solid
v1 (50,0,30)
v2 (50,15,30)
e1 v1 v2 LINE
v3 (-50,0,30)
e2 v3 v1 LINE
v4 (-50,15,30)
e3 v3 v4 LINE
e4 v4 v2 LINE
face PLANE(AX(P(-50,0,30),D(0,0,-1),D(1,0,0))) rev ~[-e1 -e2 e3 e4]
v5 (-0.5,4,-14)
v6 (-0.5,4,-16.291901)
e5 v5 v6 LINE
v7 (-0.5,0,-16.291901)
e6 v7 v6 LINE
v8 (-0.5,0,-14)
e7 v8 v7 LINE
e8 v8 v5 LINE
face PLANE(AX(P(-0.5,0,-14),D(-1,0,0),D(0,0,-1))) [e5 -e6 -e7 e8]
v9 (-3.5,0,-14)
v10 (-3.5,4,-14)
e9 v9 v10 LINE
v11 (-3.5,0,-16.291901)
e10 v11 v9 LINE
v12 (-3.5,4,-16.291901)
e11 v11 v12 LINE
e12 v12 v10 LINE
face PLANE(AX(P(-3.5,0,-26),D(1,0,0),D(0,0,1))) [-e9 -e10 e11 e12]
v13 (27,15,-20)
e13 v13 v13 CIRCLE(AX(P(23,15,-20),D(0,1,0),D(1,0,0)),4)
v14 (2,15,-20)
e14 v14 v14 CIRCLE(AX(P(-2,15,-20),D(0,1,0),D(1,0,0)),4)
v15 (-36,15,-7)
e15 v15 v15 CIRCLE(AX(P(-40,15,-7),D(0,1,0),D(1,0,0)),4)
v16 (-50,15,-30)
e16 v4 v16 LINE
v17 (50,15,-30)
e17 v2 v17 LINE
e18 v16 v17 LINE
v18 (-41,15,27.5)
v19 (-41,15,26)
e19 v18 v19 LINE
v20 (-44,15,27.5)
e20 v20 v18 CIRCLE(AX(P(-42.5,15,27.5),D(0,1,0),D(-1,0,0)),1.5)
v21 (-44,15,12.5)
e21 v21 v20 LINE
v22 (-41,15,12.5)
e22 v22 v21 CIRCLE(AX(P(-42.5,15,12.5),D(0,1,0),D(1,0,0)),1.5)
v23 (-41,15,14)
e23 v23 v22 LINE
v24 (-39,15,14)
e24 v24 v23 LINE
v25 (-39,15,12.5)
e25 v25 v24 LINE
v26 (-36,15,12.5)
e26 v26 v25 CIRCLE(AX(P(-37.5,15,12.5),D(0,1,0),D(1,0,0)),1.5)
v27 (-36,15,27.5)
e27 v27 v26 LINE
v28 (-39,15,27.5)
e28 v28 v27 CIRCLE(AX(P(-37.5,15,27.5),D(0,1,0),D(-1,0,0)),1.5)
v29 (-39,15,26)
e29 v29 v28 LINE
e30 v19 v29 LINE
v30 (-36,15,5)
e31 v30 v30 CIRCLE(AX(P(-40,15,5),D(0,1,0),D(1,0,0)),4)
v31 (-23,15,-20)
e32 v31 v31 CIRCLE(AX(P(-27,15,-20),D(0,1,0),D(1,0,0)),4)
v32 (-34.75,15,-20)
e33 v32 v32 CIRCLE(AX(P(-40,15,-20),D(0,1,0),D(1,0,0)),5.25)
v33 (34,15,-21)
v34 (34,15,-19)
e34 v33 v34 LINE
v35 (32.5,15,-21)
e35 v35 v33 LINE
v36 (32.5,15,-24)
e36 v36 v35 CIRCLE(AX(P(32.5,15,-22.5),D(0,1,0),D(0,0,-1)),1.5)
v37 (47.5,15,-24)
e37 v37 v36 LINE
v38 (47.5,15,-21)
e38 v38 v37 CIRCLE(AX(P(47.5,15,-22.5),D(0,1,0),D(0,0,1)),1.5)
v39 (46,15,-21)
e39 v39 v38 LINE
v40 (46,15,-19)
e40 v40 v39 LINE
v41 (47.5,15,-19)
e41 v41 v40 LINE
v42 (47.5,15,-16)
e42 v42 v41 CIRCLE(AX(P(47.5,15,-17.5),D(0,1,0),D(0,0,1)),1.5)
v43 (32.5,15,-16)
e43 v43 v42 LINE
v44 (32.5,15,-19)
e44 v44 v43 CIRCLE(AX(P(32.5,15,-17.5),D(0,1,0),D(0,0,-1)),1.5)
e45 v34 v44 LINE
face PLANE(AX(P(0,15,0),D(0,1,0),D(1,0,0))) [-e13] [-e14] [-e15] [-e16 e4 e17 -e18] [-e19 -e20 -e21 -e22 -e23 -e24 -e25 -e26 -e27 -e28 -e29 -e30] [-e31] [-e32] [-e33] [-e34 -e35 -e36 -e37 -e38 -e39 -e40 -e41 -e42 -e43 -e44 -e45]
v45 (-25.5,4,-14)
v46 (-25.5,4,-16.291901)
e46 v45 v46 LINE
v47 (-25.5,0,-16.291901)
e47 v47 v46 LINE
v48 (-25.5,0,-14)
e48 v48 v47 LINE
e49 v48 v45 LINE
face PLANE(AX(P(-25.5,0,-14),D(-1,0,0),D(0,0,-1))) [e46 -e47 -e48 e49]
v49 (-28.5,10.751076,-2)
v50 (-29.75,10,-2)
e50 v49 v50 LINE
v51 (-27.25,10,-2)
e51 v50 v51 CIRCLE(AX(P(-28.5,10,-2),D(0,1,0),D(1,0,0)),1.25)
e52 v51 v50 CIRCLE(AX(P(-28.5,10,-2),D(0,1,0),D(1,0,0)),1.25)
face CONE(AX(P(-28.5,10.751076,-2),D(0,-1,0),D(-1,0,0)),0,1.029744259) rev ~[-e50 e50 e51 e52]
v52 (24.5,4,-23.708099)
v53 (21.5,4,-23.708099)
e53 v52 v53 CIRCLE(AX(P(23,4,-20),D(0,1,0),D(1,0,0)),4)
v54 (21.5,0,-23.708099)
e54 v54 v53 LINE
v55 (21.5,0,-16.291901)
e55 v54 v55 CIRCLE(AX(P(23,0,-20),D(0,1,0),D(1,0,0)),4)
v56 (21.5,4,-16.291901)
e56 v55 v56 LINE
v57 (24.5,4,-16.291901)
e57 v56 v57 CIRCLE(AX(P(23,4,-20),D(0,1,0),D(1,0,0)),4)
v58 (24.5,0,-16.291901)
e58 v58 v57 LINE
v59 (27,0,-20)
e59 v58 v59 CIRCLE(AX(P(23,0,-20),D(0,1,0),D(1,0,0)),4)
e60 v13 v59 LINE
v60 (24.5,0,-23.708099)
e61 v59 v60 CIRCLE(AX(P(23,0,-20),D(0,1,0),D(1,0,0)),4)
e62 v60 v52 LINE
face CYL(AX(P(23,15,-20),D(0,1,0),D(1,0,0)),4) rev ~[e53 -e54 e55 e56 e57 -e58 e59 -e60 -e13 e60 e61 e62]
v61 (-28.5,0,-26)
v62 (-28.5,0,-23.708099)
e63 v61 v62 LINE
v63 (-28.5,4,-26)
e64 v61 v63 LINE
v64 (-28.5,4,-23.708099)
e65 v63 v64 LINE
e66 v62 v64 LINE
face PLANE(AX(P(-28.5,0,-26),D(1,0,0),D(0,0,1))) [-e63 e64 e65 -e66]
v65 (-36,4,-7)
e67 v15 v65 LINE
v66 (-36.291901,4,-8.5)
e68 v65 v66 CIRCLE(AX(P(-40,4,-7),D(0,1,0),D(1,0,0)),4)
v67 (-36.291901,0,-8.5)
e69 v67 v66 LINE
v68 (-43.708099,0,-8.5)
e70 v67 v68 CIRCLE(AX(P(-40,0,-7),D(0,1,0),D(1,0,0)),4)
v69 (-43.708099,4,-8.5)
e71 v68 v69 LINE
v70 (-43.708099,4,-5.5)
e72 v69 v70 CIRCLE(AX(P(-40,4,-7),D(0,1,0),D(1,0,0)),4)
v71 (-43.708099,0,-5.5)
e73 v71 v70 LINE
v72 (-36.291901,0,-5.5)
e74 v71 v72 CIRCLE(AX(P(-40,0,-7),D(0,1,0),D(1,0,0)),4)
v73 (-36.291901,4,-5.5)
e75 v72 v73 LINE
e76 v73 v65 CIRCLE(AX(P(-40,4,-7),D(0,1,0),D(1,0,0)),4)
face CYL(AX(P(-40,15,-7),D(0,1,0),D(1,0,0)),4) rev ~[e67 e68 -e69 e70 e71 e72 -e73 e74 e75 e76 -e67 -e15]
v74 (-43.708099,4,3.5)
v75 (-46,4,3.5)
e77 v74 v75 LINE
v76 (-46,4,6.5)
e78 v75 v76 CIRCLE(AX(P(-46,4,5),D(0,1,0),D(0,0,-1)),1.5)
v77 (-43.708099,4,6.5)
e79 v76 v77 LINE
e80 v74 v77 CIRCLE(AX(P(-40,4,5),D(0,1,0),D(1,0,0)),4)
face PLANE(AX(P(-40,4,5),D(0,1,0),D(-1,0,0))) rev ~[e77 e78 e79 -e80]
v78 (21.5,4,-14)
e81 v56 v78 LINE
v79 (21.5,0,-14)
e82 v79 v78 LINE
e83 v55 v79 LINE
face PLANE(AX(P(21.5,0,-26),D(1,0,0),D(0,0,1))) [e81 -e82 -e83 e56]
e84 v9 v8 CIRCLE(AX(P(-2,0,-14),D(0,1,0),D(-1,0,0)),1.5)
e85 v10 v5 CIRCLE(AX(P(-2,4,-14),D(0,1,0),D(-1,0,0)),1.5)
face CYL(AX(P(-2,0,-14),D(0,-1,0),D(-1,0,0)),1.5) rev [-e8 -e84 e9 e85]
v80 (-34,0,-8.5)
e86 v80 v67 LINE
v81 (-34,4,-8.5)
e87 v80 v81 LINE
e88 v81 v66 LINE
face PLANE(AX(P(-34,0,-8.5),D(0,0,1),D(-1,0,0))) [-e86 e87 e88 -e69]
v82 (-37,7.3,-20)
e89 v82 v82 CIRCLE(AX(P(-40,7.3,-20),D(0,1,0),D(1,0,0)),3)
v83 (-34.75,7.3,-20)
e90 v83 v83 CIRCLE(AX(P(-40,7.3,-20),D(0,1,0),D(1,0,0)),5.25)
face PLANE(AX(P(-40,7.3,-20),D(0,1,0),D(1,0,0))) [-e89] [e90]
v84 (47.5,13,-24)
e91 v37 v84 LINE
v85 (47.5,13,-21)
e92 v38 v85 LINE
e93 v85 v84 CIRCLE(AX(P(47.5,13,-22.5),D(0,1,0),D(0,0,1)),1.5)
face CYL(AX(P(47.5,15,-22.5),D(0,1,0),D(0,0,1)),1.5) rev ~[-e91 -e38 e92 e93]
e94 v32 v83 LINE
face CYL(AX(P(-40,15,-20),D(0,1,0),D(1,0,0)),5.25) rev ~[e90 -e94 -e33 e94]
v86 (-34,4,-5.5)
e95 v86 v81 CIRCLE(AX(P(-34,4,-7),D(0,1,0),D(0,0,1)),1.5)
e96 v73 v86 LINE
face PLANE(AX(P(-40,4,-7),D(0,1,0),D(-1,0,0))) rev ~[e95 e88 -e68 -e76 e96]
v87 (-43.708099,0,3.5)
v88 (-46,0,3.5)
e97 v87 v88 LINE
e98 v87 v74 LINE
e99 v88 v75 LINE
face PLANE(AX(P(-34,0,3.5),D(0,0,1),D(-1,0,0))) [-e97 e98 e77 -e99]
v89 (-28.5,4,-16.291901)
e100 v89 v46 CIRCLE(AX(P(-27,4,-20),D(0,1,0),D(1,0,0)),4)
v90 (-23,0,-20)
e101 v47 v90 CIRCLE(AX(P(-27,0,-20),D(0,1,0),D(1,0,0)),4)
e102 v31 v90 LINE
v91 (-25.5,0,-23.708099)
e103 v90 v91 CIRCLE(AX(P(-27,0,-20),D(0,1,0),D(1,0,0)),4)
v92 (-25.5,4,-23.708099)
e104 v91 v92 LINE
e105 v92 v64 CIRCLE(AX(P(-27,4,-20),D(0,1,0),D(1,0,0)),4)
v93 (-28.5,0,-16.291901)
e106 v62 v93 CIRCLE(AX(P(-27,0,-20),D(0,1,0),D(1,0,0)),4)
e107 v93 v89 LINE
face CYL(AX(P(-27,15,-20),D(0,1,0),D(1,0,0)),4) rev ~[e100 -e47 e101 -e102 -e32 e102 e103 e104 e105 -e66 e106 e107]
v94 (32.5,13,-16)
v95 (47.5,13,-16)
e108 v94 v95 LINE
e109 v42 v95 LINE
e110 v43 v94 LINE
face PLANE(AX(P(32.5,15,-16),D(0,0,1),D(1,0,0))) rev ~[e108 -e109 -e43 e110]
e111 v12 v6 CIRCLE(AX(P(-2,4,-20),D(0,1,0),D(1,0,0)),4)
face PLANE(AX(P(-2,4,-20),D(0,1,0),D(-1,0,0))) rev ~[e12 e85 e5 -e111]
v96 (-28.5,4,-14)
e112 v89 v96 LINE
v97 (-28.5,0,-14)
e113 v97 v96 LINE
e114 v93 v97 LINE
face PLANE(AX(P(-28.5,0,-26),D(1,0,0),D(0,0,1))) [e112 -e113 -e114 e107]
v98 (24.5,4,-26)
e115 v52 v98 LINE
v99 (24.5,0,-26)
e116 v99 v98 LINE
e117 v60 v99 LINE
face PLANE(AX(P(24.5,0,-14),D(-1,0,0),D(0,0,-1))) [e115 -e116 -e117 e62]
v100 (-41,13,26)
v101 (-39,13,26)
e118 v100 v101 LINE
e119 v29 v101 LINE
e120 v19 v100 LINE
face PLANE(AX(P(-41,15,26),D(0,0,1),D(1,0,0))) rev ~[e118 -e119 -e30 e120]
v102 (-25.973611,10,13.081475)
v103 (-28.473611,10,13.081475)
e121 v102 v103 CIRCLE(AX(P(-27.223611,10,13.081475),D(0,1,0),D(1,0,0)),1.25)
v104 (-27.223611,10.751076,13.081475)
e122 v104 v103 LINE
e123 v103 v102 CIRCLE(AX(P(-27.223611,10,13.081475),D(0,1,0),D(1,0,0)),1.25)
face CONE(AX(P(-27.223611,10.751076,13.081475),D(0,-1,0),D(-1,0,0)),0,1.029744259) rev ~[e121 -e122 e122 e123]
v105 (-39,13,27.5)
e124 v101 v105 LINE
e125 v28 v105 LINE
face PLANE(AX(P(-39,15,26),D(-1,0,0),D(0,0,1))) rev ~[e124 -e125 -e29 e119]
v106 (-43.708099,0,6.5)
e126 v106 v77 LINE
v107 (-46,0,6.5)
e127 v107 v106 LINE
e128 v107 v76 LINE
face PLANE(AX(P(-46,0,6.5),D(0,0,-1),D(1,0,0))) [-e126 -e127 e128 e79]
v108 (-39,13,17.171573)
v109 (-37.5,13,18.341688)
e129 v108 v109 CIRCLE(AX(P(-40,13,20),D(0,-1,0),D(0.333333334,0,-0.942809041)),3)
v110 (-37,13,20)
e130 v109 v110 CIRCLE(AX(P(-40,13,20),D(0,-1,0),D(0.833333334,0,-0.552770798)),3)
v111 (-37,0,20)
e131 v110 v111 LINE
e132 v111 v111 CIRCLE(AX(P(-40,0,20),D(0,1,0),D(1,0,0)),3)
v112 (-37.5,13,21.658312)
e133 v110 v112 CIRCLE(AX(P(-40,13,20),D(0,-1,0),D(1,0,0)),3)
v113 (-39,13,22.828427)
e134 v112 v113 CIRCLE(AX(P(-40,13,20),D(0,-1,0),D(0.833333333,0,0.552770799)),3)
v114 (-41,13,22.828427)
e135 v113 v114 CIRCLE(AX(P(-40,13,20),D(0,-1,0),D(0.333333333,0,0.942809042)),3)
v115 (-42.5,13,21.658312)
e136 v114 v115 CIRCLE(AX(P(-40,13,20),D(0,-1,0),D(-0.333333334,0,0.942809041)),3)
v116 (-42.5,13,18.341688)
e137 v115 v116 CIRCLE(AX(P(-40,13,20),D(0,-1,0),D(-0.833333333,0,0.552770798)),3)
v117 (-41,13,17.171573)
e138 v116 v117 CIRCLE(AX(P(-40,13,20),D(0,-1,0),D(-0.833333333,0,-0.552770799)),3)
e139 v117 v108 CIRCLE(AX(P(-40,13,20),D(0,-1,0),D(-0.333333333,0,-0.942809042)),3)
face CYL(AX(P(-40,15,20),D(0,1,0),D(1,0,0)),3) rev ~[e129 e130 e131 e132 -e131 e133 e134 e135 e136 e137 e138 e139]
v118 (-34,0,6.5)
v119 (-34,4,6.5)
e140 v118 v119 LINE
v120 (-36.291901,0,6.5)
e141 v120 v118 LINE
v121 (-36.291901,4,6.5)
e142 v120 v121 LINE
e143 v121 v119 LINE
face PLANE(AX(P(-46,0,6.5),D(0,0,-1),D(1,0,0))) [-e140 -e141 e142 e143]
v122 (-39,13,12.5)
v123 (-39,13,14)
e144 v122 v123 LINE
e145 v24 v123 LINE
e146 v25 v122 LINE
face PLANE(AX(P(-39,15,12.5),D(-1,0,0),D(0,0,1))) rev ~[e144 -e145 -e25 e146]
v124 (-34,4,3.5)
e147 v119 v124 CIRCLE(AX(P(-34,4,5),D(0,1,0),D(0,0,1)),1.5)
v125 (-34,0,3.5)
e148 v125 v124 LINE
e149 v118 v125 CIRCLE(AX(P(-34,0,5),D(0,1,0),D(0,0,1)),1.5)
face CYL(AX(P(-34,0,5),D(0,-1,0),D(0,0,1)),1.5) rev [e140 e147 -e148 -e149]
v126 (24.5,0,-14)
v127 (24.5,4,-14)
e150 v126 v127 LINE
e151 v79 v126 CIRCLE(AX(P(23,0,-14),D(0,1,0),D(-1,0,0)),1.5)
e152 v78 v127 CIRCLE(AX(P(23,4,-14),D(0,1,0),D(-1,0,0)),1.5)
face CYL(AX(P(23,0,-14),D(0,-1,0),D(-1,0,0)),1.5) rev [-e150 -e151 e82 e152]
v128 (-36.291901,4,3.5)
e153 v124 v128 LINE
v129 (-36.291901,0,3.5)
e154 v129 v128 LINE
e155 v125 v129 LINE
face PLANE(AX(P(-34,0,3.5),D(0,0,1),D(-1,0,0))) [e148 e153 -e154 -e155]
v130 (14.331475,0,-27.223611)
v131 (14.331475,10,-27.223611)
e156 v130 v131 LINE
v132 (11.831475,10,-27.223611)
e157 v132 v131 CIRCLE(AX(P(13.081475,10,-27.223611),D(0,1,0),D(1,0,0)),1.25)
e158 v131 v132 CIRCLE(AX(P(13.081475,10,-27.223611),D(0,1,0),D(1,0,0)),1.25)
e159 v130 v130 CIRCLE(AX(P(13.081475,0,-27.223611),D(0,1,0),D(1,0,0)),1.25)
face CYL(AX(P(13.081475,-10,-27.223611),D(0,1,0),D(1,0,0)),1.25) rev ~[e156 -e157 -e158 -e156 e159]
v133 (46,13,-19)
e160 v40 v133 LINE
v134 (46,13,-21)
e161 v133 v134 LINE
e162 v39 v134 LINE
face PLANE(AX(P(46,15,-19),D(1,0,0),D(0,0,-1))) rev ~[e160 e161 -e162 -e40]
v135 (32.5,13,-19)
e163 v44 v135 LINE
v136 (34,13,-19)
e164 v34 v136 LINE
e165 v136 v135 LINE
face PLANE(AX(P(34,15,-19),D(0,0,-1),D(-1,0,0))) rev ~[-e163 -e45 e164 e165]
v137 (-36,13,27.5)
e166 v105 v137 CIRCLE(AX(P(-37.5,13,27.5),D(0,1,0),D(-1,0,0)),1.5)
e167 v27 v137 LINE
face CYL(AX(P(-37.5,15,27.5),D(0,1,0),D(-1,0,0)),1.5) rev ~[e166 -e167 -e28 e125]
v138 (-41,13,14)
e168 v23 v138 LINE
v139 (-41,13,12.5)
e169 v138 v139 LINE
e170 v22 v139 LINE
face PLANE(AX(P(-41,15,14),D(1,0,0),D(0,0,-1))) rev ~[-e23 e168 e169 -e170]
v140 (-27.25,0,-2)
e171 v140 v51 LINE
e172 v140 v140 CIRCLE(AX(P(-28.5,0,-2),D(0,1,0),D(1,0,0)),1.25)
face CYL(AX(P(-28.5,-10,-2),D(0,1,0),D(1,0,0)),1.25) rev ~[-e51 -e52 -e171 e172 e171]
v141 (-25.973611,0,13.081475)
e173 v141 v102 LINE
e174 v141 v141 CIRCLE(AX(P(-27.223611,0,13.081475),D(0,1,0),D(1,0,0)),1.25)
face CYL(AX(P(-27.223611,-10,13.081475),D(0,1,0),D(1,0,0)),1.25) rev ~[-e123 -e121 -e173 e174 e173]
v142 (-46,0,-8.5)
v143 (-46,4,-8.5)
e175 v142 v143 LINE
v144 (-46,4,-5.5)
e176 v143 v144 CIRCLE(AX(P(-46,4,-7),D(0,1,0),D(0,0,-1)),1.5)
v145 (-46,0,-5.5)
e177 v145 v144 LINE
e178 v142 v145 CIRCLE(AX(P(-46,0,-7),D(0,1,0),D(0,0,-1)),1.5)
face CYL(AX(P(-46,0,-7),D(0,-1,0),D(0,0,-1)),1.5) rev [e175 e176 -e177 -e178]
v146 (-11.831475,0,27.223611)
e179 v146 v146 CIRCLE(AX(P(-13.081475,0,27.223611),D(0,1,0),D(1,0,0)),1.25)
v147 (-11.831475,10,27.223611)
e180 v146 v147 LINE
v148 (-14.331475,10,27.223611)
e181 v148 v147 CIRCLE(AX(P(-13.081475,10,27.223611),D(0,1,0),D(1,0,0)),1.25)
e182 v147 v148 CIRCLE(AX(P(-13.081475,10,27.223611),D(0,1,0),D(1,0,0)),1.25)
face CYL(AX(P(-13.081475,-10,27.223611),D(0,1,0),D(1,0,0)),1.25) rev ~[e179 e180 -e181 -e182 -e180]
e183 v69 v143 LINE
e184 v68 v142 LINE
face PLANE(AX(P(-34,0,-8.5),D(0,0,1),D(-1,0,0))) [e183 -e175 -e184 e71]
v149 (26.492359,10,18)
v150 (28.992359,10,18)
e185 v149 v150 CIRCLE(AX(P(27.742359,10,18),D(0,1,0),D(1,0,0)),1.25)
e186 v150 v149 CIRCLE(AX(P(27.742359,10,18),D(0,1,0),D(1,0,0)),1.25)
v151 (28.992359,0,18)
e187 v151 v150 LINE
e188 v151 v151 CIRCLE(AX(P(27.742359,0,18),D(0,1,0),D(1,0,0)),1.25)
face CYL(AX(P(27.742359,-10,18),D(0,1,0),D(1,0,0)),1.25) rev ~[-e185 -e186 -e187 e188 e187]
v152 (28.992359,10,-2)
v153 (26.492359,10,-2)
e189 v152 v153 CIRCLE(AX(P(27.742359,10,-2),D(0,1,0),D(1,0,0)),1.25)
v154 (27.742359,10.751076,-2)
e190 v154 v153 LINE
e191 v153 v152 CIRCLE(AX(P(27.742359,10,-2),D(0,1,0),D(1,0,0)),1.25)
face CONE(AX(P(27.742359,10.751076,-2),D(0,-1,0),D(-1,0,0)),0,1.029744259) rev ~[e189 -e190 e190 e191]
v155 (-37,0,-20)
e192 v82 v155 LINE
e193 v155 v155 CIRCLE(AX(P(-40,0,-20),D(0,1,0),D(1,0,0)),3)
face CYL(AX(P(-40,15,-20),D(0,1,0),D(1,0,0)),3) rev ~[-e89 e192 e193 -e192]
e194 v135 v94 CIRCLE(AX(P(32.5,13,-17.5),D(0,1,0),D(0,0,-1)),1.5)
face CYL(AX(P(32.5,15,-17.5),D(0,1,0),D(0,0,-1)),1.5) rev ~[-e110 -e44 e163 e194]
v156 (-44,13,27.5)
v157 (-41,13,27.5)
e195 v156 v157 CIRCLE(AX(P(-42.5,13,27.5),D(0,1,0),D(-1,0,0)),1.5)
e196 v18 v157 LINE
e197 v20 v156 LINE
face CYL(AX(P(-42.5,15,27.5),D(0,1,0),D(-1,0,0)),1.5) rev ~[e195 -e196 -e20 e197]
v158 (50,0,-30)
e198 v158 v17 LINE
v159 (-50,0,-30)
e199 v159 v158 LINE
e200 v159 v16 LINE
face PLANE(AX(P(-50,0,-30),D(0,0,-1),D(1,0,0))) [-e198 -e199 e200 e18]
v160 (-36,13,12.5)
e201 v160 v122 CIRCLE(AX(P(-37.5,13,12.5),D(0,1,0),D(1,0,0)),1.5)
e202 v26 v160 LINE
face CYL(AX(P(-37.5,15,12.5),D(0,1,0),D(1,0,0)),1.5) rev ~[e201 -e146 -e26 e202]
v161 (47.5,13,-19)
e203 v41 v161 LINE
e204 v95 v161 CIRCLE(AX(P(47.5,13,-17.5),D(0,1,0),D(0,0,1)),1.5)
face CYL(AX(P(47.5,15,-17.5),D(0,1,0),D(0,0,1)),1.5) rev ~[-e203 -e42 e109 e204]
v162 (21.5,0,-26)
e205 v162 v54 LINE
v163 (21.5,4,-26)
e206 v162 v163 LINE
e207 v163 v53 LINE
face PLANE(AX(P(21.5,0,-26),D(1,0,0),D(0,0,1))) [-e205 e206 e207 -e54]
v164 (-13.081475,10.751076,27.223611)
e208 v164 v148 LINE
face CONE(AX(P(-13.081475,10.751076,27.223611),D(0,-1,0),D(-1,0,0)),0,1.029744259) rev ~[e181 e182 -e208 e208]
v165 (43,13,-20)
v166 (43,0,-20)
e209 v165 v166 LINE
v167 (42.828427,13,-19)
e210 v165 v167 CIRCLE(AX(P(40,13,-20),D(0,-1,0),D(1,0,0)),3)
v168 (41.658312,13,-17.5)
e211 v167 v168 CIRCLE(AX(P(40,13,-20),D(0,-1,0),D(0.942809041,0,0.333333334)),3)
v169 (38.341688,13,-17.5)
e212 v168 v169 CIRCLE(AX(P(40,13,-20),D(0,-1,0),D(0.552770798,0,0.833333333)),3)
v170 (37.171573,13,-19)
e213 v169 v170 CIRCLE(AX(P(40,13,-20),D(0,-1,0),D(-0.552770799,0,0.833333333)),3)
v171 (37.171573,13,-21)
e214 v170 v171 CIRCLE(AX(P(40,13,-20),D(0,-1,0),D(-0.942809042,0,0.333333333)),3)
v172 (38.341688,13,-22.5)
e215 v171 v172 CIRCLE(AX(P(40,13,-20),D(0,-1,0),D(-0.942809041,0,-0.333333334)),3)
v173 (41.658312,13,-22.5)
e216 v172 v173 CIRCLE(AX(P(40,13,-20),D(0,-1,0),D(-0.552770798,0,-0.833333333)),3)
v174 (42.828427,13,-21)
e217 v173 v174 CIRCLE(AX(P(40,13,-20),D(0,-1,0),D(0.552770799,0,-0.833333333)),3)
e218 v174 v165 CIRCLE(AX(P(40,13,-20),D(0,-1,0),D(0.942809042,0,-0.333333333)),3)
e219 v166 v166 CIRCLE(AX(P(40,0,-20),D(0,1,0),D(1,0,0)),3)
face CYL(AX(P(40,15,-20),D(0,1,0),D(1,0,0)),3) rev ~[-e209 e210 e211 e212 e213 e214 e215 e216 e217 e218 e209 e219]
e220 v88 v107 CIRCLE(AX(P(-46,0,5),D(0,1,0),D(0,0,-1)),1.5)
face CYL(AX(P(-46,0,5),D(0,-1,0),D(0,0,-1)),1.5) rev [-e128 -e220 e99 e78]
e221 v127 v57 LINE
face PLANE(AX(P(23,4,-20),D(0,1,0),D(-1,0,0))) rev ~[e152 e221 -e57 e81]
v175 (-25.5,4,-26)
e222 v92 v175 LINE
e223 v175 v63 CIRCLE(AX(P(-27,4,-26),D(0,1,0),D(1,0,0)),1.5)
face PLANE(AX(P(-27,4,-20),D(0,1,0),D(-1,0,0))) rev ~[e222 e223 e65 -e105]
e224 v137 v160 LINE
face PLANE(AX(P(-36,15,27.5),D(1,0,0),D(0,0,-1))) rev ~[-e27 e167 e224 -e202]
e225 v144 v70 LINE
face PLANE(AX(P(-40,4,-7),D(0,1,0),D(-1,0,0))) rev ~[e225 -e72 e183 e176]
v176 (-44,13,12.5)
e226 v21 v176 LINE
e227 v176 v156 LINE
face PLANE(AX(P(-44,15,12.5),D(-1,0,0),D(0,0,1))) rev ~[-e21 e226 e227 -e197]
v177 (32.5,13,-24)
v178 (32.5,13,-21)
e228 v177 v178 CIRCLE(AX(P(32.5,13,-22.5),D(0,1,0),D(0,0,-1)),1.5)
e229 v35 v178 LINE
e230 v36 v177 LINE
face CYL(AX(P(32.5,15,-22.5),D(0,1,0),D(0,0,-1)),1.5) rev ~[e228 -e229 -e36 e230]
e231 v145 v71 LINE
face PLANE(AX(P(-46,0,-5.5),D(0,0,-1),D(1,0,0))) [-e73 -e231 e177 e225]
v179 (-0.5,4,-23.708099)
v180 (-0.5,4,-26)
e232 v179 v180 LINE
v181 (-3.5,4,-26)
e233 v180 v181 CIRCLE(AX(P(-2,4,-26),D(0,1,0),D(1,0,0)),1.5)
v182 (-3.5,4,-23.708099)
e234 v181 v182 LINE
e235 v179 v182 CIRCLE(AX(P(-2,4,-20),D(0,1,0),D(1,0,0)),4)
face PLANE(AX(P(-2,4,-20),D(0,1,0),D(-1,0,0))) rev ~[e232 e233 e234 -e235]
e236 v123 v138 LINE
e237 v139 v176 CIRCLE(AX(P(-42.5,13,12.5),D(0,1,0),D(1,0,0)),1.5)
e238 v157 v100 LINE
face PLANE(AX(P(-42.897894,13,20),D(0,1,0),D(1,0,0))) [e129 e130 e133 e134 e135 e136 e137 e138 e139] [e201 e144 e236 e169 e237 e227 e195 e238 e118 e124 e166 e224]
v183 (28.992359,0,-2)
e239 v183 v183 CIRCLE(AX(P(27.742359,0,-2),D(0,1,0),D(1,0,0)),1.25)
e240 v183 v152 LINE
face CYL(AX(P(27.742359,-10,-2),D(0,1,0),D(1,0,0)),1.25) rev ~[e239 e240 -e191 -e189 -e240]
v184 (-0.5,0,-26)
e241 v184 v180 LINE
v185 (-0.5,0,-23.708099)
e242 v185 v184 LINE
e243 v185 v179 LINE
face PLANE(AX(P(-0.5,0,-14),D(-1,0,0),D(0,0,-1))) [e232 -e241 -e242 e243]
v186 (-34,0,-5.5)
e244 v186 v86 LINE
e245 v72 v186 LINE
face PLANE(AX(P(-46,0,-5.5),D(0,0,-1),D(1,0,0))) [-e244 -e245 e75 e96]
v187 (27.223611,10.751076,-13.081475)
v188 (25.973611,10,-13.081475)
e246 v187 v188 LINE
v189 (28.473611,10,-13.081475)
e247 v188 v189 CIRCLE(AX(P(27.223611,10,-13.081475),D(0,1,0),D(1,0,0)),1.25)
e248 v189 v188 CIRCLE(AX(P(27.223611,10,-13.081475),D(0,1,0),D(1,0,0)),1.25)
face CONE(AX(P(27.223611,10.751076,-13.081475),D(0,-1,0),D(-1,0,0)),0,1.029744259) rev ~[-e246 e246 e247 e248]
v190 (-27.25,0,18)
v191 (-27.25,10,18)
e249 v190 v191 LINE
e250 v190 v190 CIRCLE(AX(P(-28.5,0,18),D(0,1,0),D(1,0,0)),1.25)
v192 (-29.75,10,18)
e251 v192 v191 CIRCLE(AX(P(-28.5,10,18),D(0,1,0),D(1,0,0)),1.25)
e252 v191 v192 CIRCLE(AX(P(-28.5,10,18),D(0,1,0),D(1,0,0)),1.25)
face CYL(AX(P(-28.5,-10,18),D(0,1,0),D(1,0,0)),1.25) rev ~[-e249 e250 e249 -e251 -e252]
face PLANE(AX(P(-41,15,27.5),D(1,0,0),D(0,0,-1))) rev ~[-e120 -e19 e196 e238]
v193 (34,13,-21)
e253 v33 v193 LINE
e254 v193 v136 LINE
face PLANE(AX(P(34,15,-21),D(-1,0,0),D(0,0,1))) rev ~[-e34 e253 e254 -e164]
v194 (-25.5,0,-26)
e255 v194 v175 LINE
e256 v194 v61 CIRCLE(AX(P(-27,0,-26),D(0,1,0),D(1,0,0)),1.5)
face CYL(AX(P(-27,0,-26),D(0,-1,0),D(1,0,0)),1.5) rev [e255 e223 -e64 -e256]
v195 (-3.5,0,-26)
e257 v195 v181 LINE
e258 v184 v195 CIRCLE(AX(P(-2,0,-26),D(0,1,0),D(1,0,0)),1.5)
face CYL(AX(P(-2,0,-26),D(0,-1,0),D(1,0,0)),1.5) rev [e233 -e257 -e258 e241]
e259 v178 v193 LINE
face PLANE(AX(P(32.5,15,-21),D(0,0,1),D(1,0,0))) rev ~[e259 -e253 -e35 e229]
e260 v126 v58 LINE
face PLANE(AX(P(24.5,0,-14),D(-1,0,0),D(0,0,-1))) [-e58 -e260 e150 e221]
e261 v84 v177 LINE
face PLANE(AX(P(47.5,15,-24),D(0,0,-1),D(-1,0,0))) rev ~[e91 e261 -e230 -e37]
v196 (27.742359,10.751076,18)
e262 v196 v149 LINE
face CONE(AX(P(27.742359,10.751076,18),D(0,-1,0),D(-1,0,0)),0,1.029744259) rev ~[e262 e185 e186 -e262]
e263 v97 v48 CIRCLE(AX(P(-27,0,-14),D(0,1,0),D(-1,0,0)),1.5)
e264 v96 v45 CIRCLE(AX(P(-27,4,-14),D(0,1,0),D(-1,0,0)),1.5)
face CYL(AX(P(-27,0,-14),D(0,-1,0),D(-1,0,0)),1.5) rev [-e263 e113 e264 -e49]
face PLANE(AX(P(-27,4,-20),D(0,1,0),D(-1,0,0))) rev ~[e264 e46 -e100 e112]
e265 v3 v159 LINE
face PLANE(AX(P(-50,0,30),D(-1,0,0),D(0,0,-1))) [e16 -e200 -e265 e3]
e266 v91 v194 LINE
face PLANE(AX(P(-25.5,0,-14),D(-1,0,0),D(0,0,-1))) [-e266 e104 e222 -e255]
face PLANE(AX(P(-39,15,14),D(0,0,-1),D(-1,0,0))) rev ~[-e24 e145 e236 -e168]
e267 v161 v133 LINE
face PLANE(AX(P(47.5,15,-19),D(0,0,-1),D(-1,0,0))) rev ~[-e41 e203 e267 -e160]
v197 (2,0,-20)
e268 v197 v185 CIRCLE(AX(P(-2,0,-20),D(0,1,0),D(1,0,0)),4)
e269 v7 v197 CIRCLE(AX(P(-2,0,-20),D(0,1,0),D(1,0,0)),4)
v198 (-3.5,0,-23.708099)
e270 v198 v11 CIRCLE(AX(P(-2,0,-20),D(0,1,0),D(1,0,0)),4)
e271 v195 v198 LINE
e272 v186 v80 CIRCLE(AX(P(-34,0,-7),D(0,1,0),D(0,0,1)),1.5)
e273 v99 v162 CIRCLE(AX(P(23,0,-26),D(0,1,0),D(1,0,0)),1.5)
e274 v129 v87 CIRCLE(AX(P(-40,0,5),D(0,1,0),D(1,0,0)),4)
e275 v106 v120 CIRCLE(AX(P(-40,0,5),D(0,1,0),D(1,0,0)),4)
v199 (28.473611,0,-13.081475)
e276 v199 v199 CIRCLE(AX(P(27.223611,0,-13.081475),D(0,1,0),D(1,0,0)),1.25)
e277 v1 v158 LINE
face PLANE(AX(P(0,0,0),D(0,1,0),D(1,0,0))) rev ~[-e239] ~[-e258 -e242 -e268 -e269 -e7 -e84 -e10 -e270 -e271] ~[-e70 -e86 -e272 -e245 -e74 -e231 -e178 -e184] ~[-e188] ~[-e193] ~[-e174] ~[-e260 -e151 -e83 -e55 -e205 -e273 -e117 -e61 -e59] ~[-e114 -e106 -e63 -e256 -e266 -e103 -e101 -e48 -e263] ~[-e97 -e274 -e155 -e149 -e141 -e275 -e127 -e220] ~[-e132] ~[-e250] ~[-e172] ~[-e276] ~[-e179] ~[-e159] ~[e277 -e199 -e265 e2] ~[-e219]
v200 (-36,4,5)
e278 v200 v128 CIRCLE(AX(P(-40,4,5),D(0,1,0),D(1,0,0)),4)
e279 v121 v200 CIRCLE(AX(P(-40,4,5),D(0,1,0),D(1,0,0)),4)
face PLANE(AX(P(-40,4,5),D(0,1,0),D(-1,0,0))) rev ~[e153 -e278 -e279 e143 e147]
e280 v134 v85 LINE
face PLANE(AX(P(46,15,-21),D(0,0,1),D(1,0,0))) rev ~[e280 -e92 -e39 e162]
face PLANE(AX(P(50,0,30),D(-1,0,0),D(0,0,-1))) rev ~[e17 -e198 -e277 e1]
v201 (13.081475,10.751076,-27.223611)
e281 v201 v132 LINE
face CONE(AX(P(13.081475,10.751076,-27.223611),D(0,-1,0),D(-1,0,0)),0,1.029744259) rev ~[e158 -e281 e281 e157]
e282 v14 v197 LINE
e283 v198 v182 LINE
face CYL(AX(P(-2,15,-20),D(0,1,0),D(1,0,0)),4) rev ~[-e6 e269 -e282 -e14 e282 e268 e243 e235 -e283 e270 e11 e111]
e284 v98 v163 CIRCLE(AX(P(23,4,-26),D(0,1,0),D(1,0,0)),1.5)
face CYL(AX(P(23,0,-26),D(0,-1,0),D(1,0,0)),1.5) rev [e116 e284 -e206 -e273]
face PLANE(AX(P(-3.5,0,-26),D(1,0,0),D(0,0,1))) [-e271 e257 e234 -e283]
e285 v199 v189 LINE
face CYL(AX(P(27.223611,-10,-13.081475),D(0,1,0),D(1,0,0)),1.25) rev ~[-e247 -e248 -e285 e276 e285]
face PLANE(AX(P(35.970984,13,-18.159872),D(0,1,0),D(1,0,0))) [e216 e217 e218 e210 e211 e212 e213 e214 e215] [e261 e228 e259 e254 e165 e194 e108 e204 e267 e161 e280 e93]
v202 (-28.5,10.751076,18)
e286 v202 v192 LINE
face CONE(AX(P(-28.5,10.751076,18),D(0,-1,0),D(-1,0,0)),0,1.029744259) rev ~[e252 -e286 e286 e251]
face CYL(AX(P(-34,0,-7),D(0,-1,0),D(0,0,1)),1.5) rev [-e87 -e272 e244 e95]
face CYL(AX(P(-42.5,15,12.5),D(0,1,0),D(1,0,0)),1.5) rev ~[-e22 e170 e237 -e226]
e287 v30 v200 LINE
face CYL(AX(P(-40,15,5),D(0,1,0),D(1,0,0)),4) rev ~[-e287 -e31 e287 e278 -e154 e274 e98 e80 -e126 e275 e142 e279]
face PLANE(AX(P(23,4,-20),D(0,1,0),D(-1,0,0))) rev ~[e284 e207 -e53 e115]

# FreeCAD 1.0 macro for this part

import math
import FreeCAD as App
import Part
import Sketcher

V = App.Vector
Q = App.Units.Quantity

doc = App.newDocument("Part")
body = doc.addObject("PartDesign::Body", "Body")

# Sketch on XZ plane
sketch1 = body.newObject("Sketcher::SketchObject", "Sketch")
sketch1.AttachmentSupport = (doc.getObject("XZ_Plane"), [""])
sketch1.MapMode = "FlatFace"
sketch1.addGeometry([
    Part.LineSegment(V(-50, -30, 0), V(-50, 30, 0)),
    Part.LineSegment(V(-50, 30, 0), V(50, 30, 0)),
    Part.LineSegment(V(50, 30, 0), V(50, -30, 0)),
    Part.LineSegment(V(50, -30, 0), V(-50, -30, 0)),
], False)
sketch1.addConstraint([
    Sketcher.Constraint("Coincident", 0, 2, 1, 1),
    Sketcher.Constraint("Coincident", 1, 2, 2, 1),
    Sketcher.Constraint("Coincident", 2, 2, 3, 1),
    Sketcher.Constraint("Coincident", 3, 2, 0, 1),
    Sketcher.Constraint("Vertical", 0),
    Sketcher.Constraint("Horizontal", 1),
    Sketcher.Constraint("Vertical", 2),
    Sketcher.Constraint("Horizontal", 3),
    Sketcher.Constraint("Symmetric", 0, 2, 2, 2, -1, 1),
    Sketcher.Constraint("DistanceX", 1, 1, 1, 2, Q("100 mm")),
    Sketcher.Constraint("DistanceY", 0, 1, 0, 2, Q("60 mm")),
])
pad1 = body.newObject("PartDesign::Pad", "Pad")
pad1.Profile = sketch1
pad1.Length = 15
pad1.Reversed = True

# Sketch on XZ plane
sketch2 = body.newObject("Sketcher::SketchObject", "Sketch001")
sketch2.AttachmentSupport = (doc.getObject("XZ_Plane"), [""])
sketch2.MapMode = "FlatFace"
sketch2.AttachmentOffset = App.Placement(V(0, 0, -15), App.Rotation())
sketch2.addGeometry(Part.Circle(V(-40, -20, 0), V(0, 0, 1), 3), False)
sketch2.addConstraint([
    Sketcher.Constraint("Diameter", 0, Q("6 mm")),
    Sketcher.Constraint("DistanceX", 0, 3, -1, 1, Q("40 mm")),
    Sketcher.Constraint("DistanceY", 0, 3, -1, 1, Q("20 mm")),
])
pocket1 = body.newObject("PartDesign::Pocket", "Pocket")
pocket1.Profile = sketch2
pocket1.Type = "UpToFirst"
pocket1.Reversed = True

# Sketch on XZ plane
sketch3 = body.newObject("Sketcher::SketchObject", "Sketch002")
sketch3.AttachmentSupport = (doc.getObject("XZ_Plane"), [""])
sketch3.MapMode = "FlatFace"
sketch3.AttachmentOffset = App.Placement(V(0, 0, -15), App.Rotation())
sketch3.addGeometry(Part.Circle(V(-40, -20, 0), V(0, 0, 1), 5.25), False)
sketch3.addConstraint([
    Sketcher.Constraint("Diameter", 0, Q("10.5 mm")),
    Sketcher.Constraint("DistanceX", 0, 3, -1, 1, Q("40 mm")),
    Sketcher.Constraint("DistanceY", 0, 3, -1, 1, Q("20 mm")),
])
pocket2 = body.newObject("PartDesign::Pocket", "Pocket001")
pocket2.Profile = sketch3
pocket2.Length = 7.7
pocket2.Reversed = True

# Sketch on XZ plane
sketch4 = body.newObject("Sketcher::SketchObject", "Sketch003")
sketch4.AttachmentSupport = (doc.getObject("XZ_Plane"), [""])
sketch4.MapMode = "FlatFace"
sketch4.AttachmentOffset = App.Placement(V(0, 0, -15), App.Rotation())
sketch4.addGeometry(Part.Circle(V(-40, -7, 0), V(0, 0, 1), 4), False)
sketch4.addConstraint([
    Sketcher.Constraint("Diameter", 0, Q("8 mm")),
    Sketcher.Constraint("DistanceX", 0, 3, -1, 1, Q("40 mm")),
    Sketcher.Constraint("DistanceY", 0, 3, -1, 1, Q("7 mm")),
])
pocket3 = body.newObject("PartDesign::Pocket", "Pocket002")
pocket3.Profile = sketch4
pocket3.Type = "UpToFirst"
pocket3.Reversed = True

# Sketch on XZ plane
sketch5 = body.newObject("Sketcher::SketchObject", "Sketch004")
sketch5.AttachmentSupport = (doc.getObject("XZ_Plane"), [""])
sketch5.MapMode = "FlatFace"
sketch5.AttachmentOffset = App.Placement(V(0, 0, -15), App.Rotation())
sketch5.addGeometry(Part.Circle(V(-40, 5, 0), V(0, 0, 1), 4), False)
sketch5.addConstraint([
    Sketcher.Constraint("Diameter", 0, Q("8 mm")),
    Sketcher.Constraint("DistanceX", 0, 3, -1, 1, Q("40 mm")),
    Sketcher.Constraint("DistanceY", -1, 1, 0, 3, Q("5 mm")),
])
pocket4 = body.newObject("PartDesign::Pocket", "Pocket003")
pocket4.Profile = sketch5
pocket4.Type = "UpToFirst"
pocket4.Reversed = True

# Sketch on XZ plane
sketch6 = body.newObject("Sketcher::SketchObject", "Sketch005")
sketch6.AttachmentSupport = (doc.getObject("XZ_Plane"), [""])
sketch6.MapMode = "FlatFace"
sketch6.AttachmentOffset = App.Placement(V(0, 0, -15), App.Rotation())
sketch6.addGeometry(Part.Circle(V(-27, -20, 0), V(0, 0, 1), 4), False)
sketch6.addConstraint([
    Sketcher.Constraint("Diameter", 0, Q("8 mm")),
    Sketcher.Constraint("DistanceX", 0, 3, -1, 1, Q("27 mm")),
    Sketcher.Constraint("DistanceY", 0, 3, -1, 1, Q("20 mm")),
])
pocket5 = body.newObject("PartDesign::Pocket", "Pocket004")
pocket5.Profile = sketch6
pocket5.Type = "UpToFirst"
pocket5.Reversed = True

# Sketch on XZ plane
sketch7 = body.newObject("Sketcher::SketchObject", "Sketch006")
sketch7.AttachmentSupport = (doc.getObject("XZ_Plane"), [""])
sketch7.MapMode = "FlatFace"
sketch7.AttachmentOffset = App.Placement(V(0, 0, -15), App.Rotation())
sketch7.addGeometry(Part.Circle(V(-2, -20, 0), V(0, 0, 1), 4), False)
sketch7.addConstraint([
    Sketcher.Constraint("Diameter", 0, Q("8 mm")),
    Sketcher.Constraint("DistanceX", 0, 3, -1, 1, Q("2 mm")),
    Sketcher.Constraint("DistanceY", 0, 3, -1, 1, Q("20 mm")),
])
pocket6 = body.newObject("PartDesign::Pocket", "Pocket005")
pocket6.Profile = sketch7
pocket6.Type = "UpToFirst"
pocket6.Reversed = True

# Sketch on XZ plane
sketch8 = body.newObject("Sketcher::SketchObject", "Sketch007")
sketch8.AttachmentSupport = (doc.getObject("XZ_Plane"), [""])
sketch8.MapMode = "FlatFace"
sketch8.AttachmentOffset = App.Placement(V(0, 0, -15), App.Rotation())
sketch8.addGeometry(Part.Circle(V(23, -20, 0), V(0, 0, 1), 4), False)
sketch8.addConstraint([
    Sketcher.Constraint("Diameter", 0, Q("8 mm")),
    Sketcher.Constraint("DistanceX", -1, 1, 0, 3, Q("23 mm")),
    Sketcher.Constraint("DistanceY", 0, 3, -1, 1, Q("20 mm")),
])
pocket7 = body.newObject("PartDesign::Pocket", "Pocket006")
pocket7.Profile = sketch8
pocket7.Type = "UpToFirst"
pocket7.Reversed = True

# Sketch on XZ plane
sketch9 = body.newObject("Sketcher::SketchObject", "Sketch008")
sketch9.AttachmentSupport = (doc.getObject("XZ_Plane"), [""])
sketch9.MapMode = "FlatFace"
sketch9.addGeometry([
    Part.LineSegment(V(-34, 6.5, 0), V(-46, 6.5, 0)),  # 0
    Part.ArcOfCircle(Part.Circle(V(-46, 5, 0), V(0, 0, 1), 1.5), math.radians(90), math.radians(270)),  # 1
    Part.LineSegment(V(-46, 3.5, 0), V(-34, 3.5, 0)),  # 2
    Part.ArcOfCircle(Part.Circle(V(-34, 5, 0), V(0, 0, 1), 1.5), math.radians(-90), math.radians(90)),  # 3
    Part.LineSegment(V(-34, -5.5, 0), V(-46, -5.5, 0)),  # 4
    Part.ArcOfCircle(Part.Circle(V(-46, -7, 0), V(0, 0, 1), 1.5), math.radians(90), math.radians(270)),  # 5
    Part.LineSegment(V(-46, -8.5, 0), V(-34, -8.5, 0)),  # 6
    Part.ArcOfCircle(Part.Circle(V(-34, -7, 0), V(0, 0, 1), 1.5), math.radians(-90), math.radians(90)),  # 7
    Part.LineSegment(V(-28.5, -14, 0), V(-28.5, -26, 0)),  # 8
    Part.ArcOfCircle(Part.Circle(V(-27, -26, 0), V(0, 0, 1), 1.5), math.radians(180), math.radians(360)),  # 9
    Part.LineSegment(V(-25.5, -26, 0), V(-25.5, -14, 0)),  # 10
    Part.ArcOfCircle(Part.Circle(V(-27, -14, 0), V(0, 0, 1), 1.5), math.radians(0), math.radians(180)),  # 11
    Part.LineSegment(V(-3.5, -14, 0), V(-3.5, -26, 0)),  # 12
    Part.ArcOfCircle(Part.Circle(V(-2, -26, 0), V(0, 0, 1), 1.5), math.radians(180), math.radians(360)),  # 13
    Part.LineSegment(V(-0.5, -26, 0), V(-0.5, -14, 0)),  # 14
    Part.ArcOfCircle(Part.Circle(V(-2, -14, 0), V(0, 0, 1), 1.5), math.radians(0), math.radians(180)),  # 15
    Part.LineSegment(V(21.5, -14, 0), V(21.5, -26, 0)),  # 16
    Part.ArcOfCircle(Part.Circle(V(23, -26, 0), V(0, 0, 1), 1.5), math.radians(180), math.radians(360)),  # 17
    Part.LineSegment(V(24.5, -26, 0), V(24.5, -14, 0)),  # 18
    Part.ArcOfCircle(Part.Circle(V(23, -14, 0), V(0, 0, 1), 1.5), math.radians(0), math.radians(180)),  # 19
], False)
sketch9.addConstraint([
    Sketcher.Constraint("Tangent", 0, 2, 1, 1),
    Sketcher.Constraint("Tangent", 1, 2, 2, 1),
    Sketcher.Constraint("Tangent", 2, 2, 3, 1),
    Sketcher.Constraint("Tangent", 3, 2, 0, 1),
    Sketcher.Constraint("Tangent", 4, 2, 5, 1),
    Sketcher.Constraint("Tangent", 5, 2, 6, 1),
    Sketcher.Constraint("Tangent", 6, 2, 7, 1),
    Sketcher.Constraint("Tangent", 7, 2, 4, 1),
    Sketcher.Constraint("Tangent", 8, 2, 9, 1),
    Sketcher.Constraint("Tangent", 9, 2, 10, 1),
    Sketcher.Constraint("Tangent", 10, 2, 11, 1),
    Sketcher.Constraint("Tangent", 11, 2, 8, 1),
    Sketcher.Constraint("Tangent", 12, 2, 13, 1),
    Sketcher.Constraint("Tangent", 13, 2, 14, 1),
    Sketcher.Constraint("Tangent", 14, 2, 15, 1),
    Sketcher.Constraint("Tangent", 15, 2, 12, 1),
    Sketcher.Constraint("Tangent", 16, 2, 17, 1),
    Sketcher.Constraint("Tangent", 17, 2, 18, 1),
    Sketcher.Constraint("Tangent", 18, 2, 19, 1),
    Sketcher.Constraint("Tangent", 19, 2, 16, 1),
    Sketcher.Constraint("Horizontal", 0),
    Sketcher.Constraint("Horizontal", 2),
    Sketcher.Constraint("Horizontal", 4),
    Sketcher.Constraint("Horizontal", 6),
    Sketcher.Constraint("Vertical", 8),
    Sketcher.Constraint("Vertical", 10),
    Sketcher.Constraint("Vertical", 12),
    Sketcher.Constraint("Vertical", 14),
    Sketcher.Constraint("Vertical", 16),
    Sketcher.Constraint("Vertical", 18),
    Sketcher.Constraint("Equal", 3, 5),
    Sketcher.Constraint("Equal", 7, 9),
    Sketcher.Constraint("Equal", 11, 13),
    Sketcher.Constraint("Equal", 15, 17),
    Sketcher.Constraint("Horizontal", 9, 3, 13, 3),
    Sketcher.Constraint("Horizontal", 11, 3, 15, 3),
    Sketcher.Constraint("Horizontal", 13, 3, 17, 3),
    Sketcher.Constraint("Horizontal", 15, 3, 19, 3),
    Sketcher.Constraint("Vertical", 1, 3, 5, 3),
    Sketcher.Constraint("Vertical", 3, 3, 7, 3),
    Sketcher.Constraint("Equal", 6, 8),
    Sketcher.Constraint("Radius", 1, Q("1.5 mm")),
    Sketcher.Constraint("DistanceX", 0, 2, 0, 1, Q("12 mm")),
    Sketcher.Constraint("DistanceX", 1, 3, -1, 1, Q("46 mm")),
    Sketcher.Constraint("DistanceY", -1, 1, 1, 3, Q("5 mm")),
    Sketcher.Constraint("DistanceY", 5, 3, -1, 1, Q("7 mm")),
    Sketcher.Constraint("DistanceX", 9, 3, -1, 1, Q("27 mm")),
    Sketcher.Constraint("DistanceY", 9, 3, -1, 1, Q("26 mm")),
    Sketcher.Constraint("DistanceX", 13, 3, -1, 1, Q("2 mm")),
    Sketcher.Constraint("DistanceX", -1, 1, 17, 3, Q("23 mm")),
])
pocket8 = body.newObject("PartDesign::Pocket", "Pocket007")
pocket8.Profile = sketch9
pocket8.Length = 4

# Sketch on XZ plane
sketch10 = body.newObject("Sketcher::SketchObject", "Sketch009")
sketch10.AttachmentSupport = (doc.getObject("XZ_Plane"), [""])
sketch10.MapMode = "FlatFace"
sketch10.AttachmentOffset = App.Placement(V(0, 0, -15), App.Rotation())
sketch10.addGeometry(Part.Circle(V(40, -20, 0), V(0, 0, 1), 3), False)
sketch10.addConstraint([
    Sketcher.Constraint("Diameter", 0, Q("6 mm")),
    Sketcher.Constraint("DistanceX", -1, 1, 0, 3, Q("40 mm")),
    Sketcher.Constraint("DistanceY", 0, 3, -1, 1, Q("20 mm")),
])
pocket9 = body.newObject("PartDesign::Pocket", "Pocket008")
pocket9.Profile = sketch10
pocket9.Type = "UpToFirst"
pocket9.Reversed = True

# Sketch on XZ plane
sketch11 = body.newObject("Sketcher::SketchObject", "Sketch010")
sketch11.AttachmentSupport = (doc.getObject("XZ_Plane"), [""])
sketch11.MapMode = "FlatFace"
sketch11.AttachmentOffset = App.Placement(V(0, 0, -15), App.Rotation())
sketch11.addGeometry(Part.Circle(V(-40, 20, 0), V(0, 0, 1), 3), False)
sketch11.addConstraint([
    Sketcher.Constraint("Diameter", 0, Q("6 mm")),
    Sketcher.Constraint("DistanceX", 0, 3, -1, 1, Q("40 mm")),
    Sketcher.Constraint("DistanceY", -1, 1, 0, 3, Q("20 mm")),
])
pocket10 = body.newObject("PartDesign::Pocket", "Pocket009")
pocket10.Profile = sketch11
pocket10.Type = "UpToFirst"
pocket10.Reversed = True

# Sketch on XZ plane
sketch12 = body.newObject("Sketcher::SketchObject", "Sketch011")
sketch12.AttachmentSupport = (doc.getObject("XZ_Plane"), [""])
sketch12.MapMode = "FlatFace"
sketch12.AttachmentOffset = App.Placement(V(0, 0, -15), App.Rotation())
sketch12.addGeometry([
    Part.LineSegment(V(-39, 14, 0), V(-41, 14, 0)),  # 0
    Part.LineSegment(V(-41, 14, 0), V(-41, 12.5, 0)),  # 1
    Part.ArcOfCircle(Part.Circle(V(-42.5, 12.5, 0), V(0, 0, 1), 1.5), math.radians(180), math.radians(360)),  # 2
    Part.LineSegment(V(-44, 12.5, 0), V(-44, 27.5, 0)),  # 3
    Part.ArcOfCircle(Part.Circle(V(-42.5, 27.5, 0), V(0, 0, 1), 1.5), math.radians(0), math.radians(180)),  # 4
    Part.LineSegment(V(-41, 27.5, 0), V(-41, 26, 0)),  # 5
    Part.LineSegment(V(-41, 26, 0), V(-39, 26, 0)),  # 6
    Part.LineSegment(V(-39, 26, 0), V(-39, 27.5, 0)),  # 7
    Part.ArcOfCircle(Part.Circle(V(-37.5, 27.5, 0), V(0, 0, 1), 1.5), math.radians(0), math.radians(180)),  # 8
    Part.LineSegment(V(-36, 27.5, 0), V(-36, 12.5, 0)),  # 9
    Part.ArcOfCircle(Part.Circle(V(-37.5, 12.5, 0), V(0, 0, 1), 1.5), math.radians(180), math.radians(360)),  # 10
    Part.LineSegment(V(-39, 12.5, 0), V(-39, 14, 0)),  # 11
    Part.ArcOfCircle(Part.Circle(V(-40, 20, 0), V(0, 0, 1), 3), math.radians(146.44269), math.radians(213.55731)),  # 12
    Part.ArcOfCircle(Part.Circle(V(-40, 20, 0), V(0, 0, 1), 3), math.radians(-146.44269), math.radians(-109.471221)),  # 13
    Part.ArcOfCircle(Part.Circle(V(-40, 20, 0), V(0, 0, 1), 3), math.radians(-109.471221), math.radians(-70.528779)),  # 14
    Part.ArcOfCircle(Part.Circle(V(-40, 20, 0), V(0, 0, 1), 3), math.radians(-70.528779), math.radians(-33.55731)),  # 15
    Part.ArcOfCircle(Part.Circle(V(-40, 20, 0), V(0, 0, 1), 3), math.radians(-33.55731), math.radians(0)),  # 16
    Part.ArcOfCircle(Part.Circle(V(-40, 20, 0), V(0, 0, 1), 3), math.radians(0), math.radians(33.55731)),  # 17
    Part.ArcOfCircle(Part.Circle(V(-40, 20, 0), V(0, 0, 1), 3), math.radians(33.55731), math.radians(70.528779)),  # 18
    Part.ArcOfCircle(Part.Circle(V(-40, 20, 0), V(0, 0, 1), 3), math.radians(70.528779), math.radians(109.471221)),  # 19
    Part.ArcOfCircle(Part.Circle(V(-40, 20, 0), V(0, 0, 1), 3), math.radians(109.471221), math.radians(146.44269)),  # 20
    Part.LineSegment(V(34, -21, 0), V(34, -19, 0)),  # 21
    Part.LineSegment(V(34, -19, 0), V(32.5, -19, 0)),  # 22
    Part.ArcOfCircle(Part.Circle(V(32.5, -17.5, 0), V(0, 0, 1), 1.5), math.radians(90), math.radians(270)),  # 23
    Part.LineSegment(V(32.5, -16, 0), V(47.5, -16, 0)),  # 24
    Part.ArcOfCircle(Part.Circle(V(47.5, -17.5, 0), V(0, 0, 1), 1.5), math.radians(-90), math.radians(90)),  # 25
    Part.LineSegment(V(47.5, -19, 0), V(46, -19, 0)),  # 26
    Part.LineSegment(V(46, -19, 0), V(46, -21, 0)),  # 27
    Part.LineSegment(V(46, -21, 0), V(47.5, -21, 0)),  # 28
    Part.ArcOfCircle(Part.Circle(V(47.5, -22.5, 0), V(0, 0, 1), 1.5), math.radians(-90), math.radians(90)),  # 29
    Part.LineSegment(V(47.5, -24, 0), V(32.5, -24, 0)),  # 30
    Part.ArcOfCircle(Part.Circle(V(32.5, -22.5, 0), V(0, 0, 1), 1.5), math.radians(90), math.radians(270)),  # 31
    Part.LineSegment(V(32.5, -21, 0), V(34, -21, 0)),  # 32
    Part.ArcOfCircle(Part.Circle(V(40, -20, 0), V(0, 0, 1), 3), math.radians(123.55731), math.radians(160.528779)),  # 33
    Part.ArcOfCircle(Part.Circle(V(40, -20, 0), V(0, 0, 1), 3), math.radians(160.528779), math.radians(199.471221)),  # 34
    Part.ArcOfCircle(Part.Circle(V(40, -20, 0), V(0, 0, 1), 3), math.radians(-160.528779), math.radians(-123.55731)),  # 35
    Part.ArcOfCircle(Part.Circle(V(40, -20, 0), V(0, 0, 1), 3), math.radians(-123.55731), math.radians(-56.44269)),  # 36
    Part.ArcOfCircle(Part.Circle(V(40, -20, 0), V(0, 0, 1), 3), math.radians(-56.44269), math.radians(-19.471221)),  # 37
    Part.ArcOfCircle(Part.Circle(V(40, -20, 0), V(0, 0, 1), 3), math.radians(-19.471221), math.radians(0)),  # 38
    Part.ArcOfCircle(Part.Circle(V(40, -20, 0), V(0, 0, 1), 3), math.radians(0), math.radians(19.471221)),  # 39
    Part.ArcOfCircle(Part.Circle(V(40, -20, 0), V(0, 0, 1), 3), math.radians(19.471221), math.radians(56.44269)),  # 40
    Part.ArcOfCircle(Part.Circle(V(40, -20, 0), V(0, 0, 1), 3), math.radians(56.44269), math.radians(123.55731)),  # 41
], False)
sketch12.addConstraint([
    Sketcher.Constraint("Coincident", 0, 2, 1, 1),
    Sketcher.Constraint("Tangent", 1, 2, 2, 2),
    Sketcher.Constraint("Tangent", 2, 1, 3, 1),
    Sketcher.Constraint("Tangent", 3, 2, 4, 2),
    Sketcher.Constraint("Tangent", 4, 1, 5, 1),
    Sketcher.Constraint("Coincident", 5, 2, 6, 1),
    Sketcher.Constraint("Coincident", 6, 2, 7, 1),
    Sketcher.Constraint("Tangent", 7, 2, 8, 2),
    Sketcher.Constraint("Tangent", 8, 1, 9, 1),
    Sketcher.Constraint("Tangent", 9, 2, 10, 2),
    Sketcher.Constraint("Tangent", 10, 1, 11, 1),
    Sketcher.Constraint("Coincident", 11, 2, 0, 1),
    Sketcher.Constraint("Tangent", 12, 2, 13, 1),
    Sketcher.Constraint("Tangent", 13, 2, 14, 1),
    Sketcher.Constraint("Tangent", 14, 2, 15, 1),
    Sketcher.Constraint("Tangent", 15, 2, 16, 1),
    Sketcher.Constraint("Tangent", 16, 2, 17, 1),
    Sketcher.Constraint("Tangent", 17, 2, 18, 1),
    Sketcher.Constraint("Tangent", 18, 2, 19, 1),
    Sketcher.Constraint("Tangent", 19, 2, 20, 1),
    Sketcher.Constraint("Tangent", 20, 2, 12, 1),
    Sketcher.Constraint("Coincident", 21, 2, 22, 1),
    Sketcher.Constraint("Tangent", 22, 2, 23, 2),
    Sketcher.Constraint("Tangent", 23, 1, 24, 1),
    Sketcher.Constraint("Tangent", 24, 2, 25, 2),
    Sketcher.Constraint("Tangent", 25, 1, 26, 1),
    Sketcher.Constraint("Coincident", 26, 2, 27, 1),
    Sketcher.Constraint("Coincident", 27, 2, 28, 1),
    Sketcher.Constraint("Tangent", 28, 2, 29, 2),
    Sketcher.Constraint("Tangent", 29, 1, 30, 1),
    Sketcher.Constraint("Tangent", 30, 2, 31, 2),
    Sketcher.Constraint("Tangent", 31, 1, 32, 1),
    Sketcher.Constraint("Coincident", 32, 2, 21, 1),
    Sketcher.Constraint("Tangent", 33, 2, 34, 1),
    Sketcher.Constraint("Tangent", 34, 2, 35, 1),
    Sketcher.Constraint("Tangent", 35, 2, 36, 1),
    Sketcher.Constraint("Tangent", 36, 2, 37, 1),
    Sketcher.Constraint("Tangent", 37, 2, 38, 1),
    Sketcher.Constraint("Tangent", 38, 2, 39, 1),
    Sketcher.Constraint("Tangent", 39, 2, 40, 1),
    Sketcher.Constraint("Tangent", 40, 2, 41, 1),
    Sketcher.Constraint("Tangent", 41, 2, 33, 1),
    Sketcher.Constraint("Horizontal", 0),
    Sketcher.Constraint("Vertical", 1),
    Sketcher.Constraint("Vertical", 3),
    Sketcher.Constraint("Vertical", 5),
    Sketcher.Constraint("Horizontal", 6),
    Sketcher.Constraint("Vertical", 7),
    Sketcher.Constraint("Vertical", 9),
    Sketcher.Constraint("Vertical", 11),
    Sketcher.Constraint("Vertical", 21),
    Sketcher.Constraint("Horizontal", 22),
    Sketcher.Constraint("Horizontal", 24),
    Sketcher.Constraint("Horizontal", 26),
    Sketcher.Constraint("Vertical", 27),
    Sketcher.Constraint("Horizontal", 28),
    Sketcher.Constraint("Horizontal", 30),
    Sketcher.Constraint("Horizontal", 32),
    Sketcher.Constraint("Coincident", 14, 3, 12, 3),
    Sketcher.Constraint("Coincident", 16, 3, 12, 3),
    Sketcher.Constraint("Coincident", 18, 3, 12, 3),
    Sketcher.Constraint("Coincident", 35, 3, 33, 3),
    Sketcher.Constraint("Coincident", 37, 3, 33, 3),
    Sketcher.Constraint("Coincident", 39, 3, 33, 3),
    Sketcher.Constraint("Equal", 2, 4),
    Sketcher.Constraint("Equal", 4, 8),
    Sketcher.Constraint("Equal", 8, 10),
    Sketcher.Constraint("Equal", 10, 23),
    Sketcher.Constraint("Equal", 23, 25),
    Sketcher.Constraint("Equal", 25, 29),
    Sketcher.Constraint("Equal", 29, 31),
    Sketcher.Constraint("Equal", 20, 33),
    Sketcher.Constraint("Symmetric", 12, 3, 33, 3, -1, 1),
    Sketcher.Constraint("Horizontal", 4, 3, 8, 3),
    Sketcher.Constraint("Horizontal", 2, 3, 10, 3),
    Sketcher.Constraint("Horizontal", 13, 2, 14, 2),
    Sketcher.Constraint("Horizontal", 12, 2, 15, 2),
    Sketcher.Constraint("Horizontal", 20, 3, 16, 2),
    Sketcher.Constraint("Horizontal", 18, 2, 19, 2),
    Sketcher.Constraint("Horizontal", 17, 2, 20, 2),
    Sketcher.Constraint("Horizontal", 26, 2, 33, 2),
    Sketcher.Constraint("Horizontal", 32, 2, 34, 2),
    Sketcher.Constraint("Horizontal", 31, 3, 35, 2),
    Sketcher.Constraint("Horizontal", 35, 2, 36, 2),
    Sketcher.Constraint("Horizontal", 34, 2, 37, 2),
    Sketcher.Constraint("Horizontal", 41, 3, 38, 2),
    Sketcher.Constraint("Horizontal", 33, 2, 39, 2),
    Sketcher.Constraint("Horizontal", 25, 3, 40, 2),
    Sketcher.Constraint("Horizontal", 40, 2, 41, 2),
    Sketcher.Constraint("Vertical", 25, 3, 29, 3),
    Sketcher.Constraint("Vertical", 23, 3, 31, 3),
    Sketcher.Constraint("Vertical", 4, 3, 12, 2),
    Sketcher.Constraint("Vertical", 5, 2, 13, 2),
    Sketcher.Constraint("Vertical", 11, 2, 14, 2),
    Sketcher.Constraint("Vertical", 15, 2, 17, 2),
    Sketcher.Constraint("Vertical", 14, 2, 18, 2),
    Sketcher.Constraint("Vertical", 33, 2, 34, 2),
    Sketcher.Constraint("Equal", 22, 26),
    Sketcher.Constraint("Equal", 32, 1),
    Sketcher.Constraint("Equal", 30, 3),
    Sketcher.Constraint("Equal", 1, 5),
    Sketcher.Constraint("Equal", 6, 21),
    Sketcher.Constraint("Radius", 12, Q("3 mm")),
    Sketcher.Constraint("Radius", 2, Q("1.5 mm")),
    Sketcher.Constraint("DistanceX", 0, 2, 0, 1, Q("2 mm")),
    Sketcher.Constraint("DistanceX", 24, 1, 24, 2, Q("15 mm")),
    Sketcher.Constraint("DistanceX", 22, 2, 22, 1, Q("1.5 mm")),
    Sketcher.Constraint("DistanceX", 12, 3, -1, 1, Q("40 mm")),
    Sketcher.Constraint("DistanceY", -1, 1, 12, 3, Q("20 mm")),
    Sketcher.Constraint("DistanceY", -1, 1, 0, 2, Q("14 mm")),
    Sketcher.Constraint("DistanceX", -1, 1, 21, 2, Q("34 mm")),
])
pocket11 = body.newObject("PartDesign::Pocket", "Pocket010")
pocket11.Profile = sketch12
pocket11.Length = 2
pocket11.Reversed = True

# Sketch on XZ plane
sketch13 = body.newObject("Sketcher::SketchObject", "Sketch012")
sketch13.AttachmentSupport = (doc.getObject("XZ_Plane"), [""])
sketch13.MapMode = "FlatFace"
sketch13.addGeometry([
    Part.Circle(V(-28.5, 18, 0), V(0, 0, 1), 1.25),  # 0
    Part.Circle(V(-27.223611, 13.081475, 0), V(0, 0, 1), 1.25),  # 1
    Part.Circle(V(-28.5, -2, 0), V(0, 0, 1), 1.25),  # 2
    Part.Circle(V(27.742359, 18, 0), V(0, 0, 1), 1.25),  # 3
    Part.Circle(V(27.742359, -2, 0), V(0, 0, 1), 1.25),  # 4
    Part.Circle(V(27.223611, -13.081475, 0), V(0, 0, 1), 1.25),  # 5
    Part.Circle(V(13.081475, -27.223611, 0), V(0, 0, 1), 1.25),  # 6
    Part.Circle(V(-13.081475, 27.223611, 0), V(0, 0, 1), 1.25),  # 7
], False)
sketch13.addConstraint([
    Sketcher.Constraint("Equal", 0, 1),
    Sketcher.Constraint("Equal", 1, 2),
    Sketcher.Constraint("Equal", 2, 3),
    Sketcher.Constraint("Equal", 3, 4),
    Sketcher.Constraint("Equal", 4, 5),
    Sketcher.Constraint("Equal", 5, 6),
    Sketcher.Constraint("Equal", 6, 7),
    Sketcher.Constraint("Symmetric", 1, 3, 5, 3, -1, 1),
    Sketcher.Constraint("Symmetric", 6, 3, 7, 3, -1, 1),
    Sketcher.Constraint("Horizontal", 0, 3, 3, 3),
    Sketcher.Constraint("Horizontal", 2, 3, 4, 3),
    Sketcher.Constraint("Vertical", 0, 3, 2, 3),
    Sketcher.Constraint("Vertical", 3, 3, 4, 3),
    Sketcher.Constraint("Diameter", 0, Q("2.5 mm")),
    Sketcher.Constraint("DistanceY", -1, 1, 0, 3, Q("18 mm")),
    Sketcher.Constraint("DistanceY", 2, 3, -1, 1, Q("2 mm")),
    Sketcher.Constraint("DistanceX", 0, 3, -1, 1, Q("28.5 mm")),
    Sketcher.Constraint("DistanceX", 1, 3, -1, 1, Q("27.223611 mm")),
    Sketcher.Constraint("DistanceX", -1, 1, 3, 3, Q("27.742359 mm")),
    Sketcher.Constraint("DistanceY", 6, 3, -1, 1, Q("27.223611 mm")),
    Sketcher.Constraint("DistanceY", 5, 3, 1, 3, Q("26.162951 mm")),
    Sketcher.Constraint("DistanceX", -1, 1, 6, 3, Q("13.081475 mm")),
])
doc.recompute()
hole = body.newObject("PartDesign::Hole", "Hole")
hole.Profile = sketch13
hole.ThreadType = "None"
hole.Diameter = 2.5
hole.DepthType = "Dimension"
hole.Depth = 10
hole.DrillPoint = "Angled"
hole.DrillPointAngle = 118

doc.recompute()
